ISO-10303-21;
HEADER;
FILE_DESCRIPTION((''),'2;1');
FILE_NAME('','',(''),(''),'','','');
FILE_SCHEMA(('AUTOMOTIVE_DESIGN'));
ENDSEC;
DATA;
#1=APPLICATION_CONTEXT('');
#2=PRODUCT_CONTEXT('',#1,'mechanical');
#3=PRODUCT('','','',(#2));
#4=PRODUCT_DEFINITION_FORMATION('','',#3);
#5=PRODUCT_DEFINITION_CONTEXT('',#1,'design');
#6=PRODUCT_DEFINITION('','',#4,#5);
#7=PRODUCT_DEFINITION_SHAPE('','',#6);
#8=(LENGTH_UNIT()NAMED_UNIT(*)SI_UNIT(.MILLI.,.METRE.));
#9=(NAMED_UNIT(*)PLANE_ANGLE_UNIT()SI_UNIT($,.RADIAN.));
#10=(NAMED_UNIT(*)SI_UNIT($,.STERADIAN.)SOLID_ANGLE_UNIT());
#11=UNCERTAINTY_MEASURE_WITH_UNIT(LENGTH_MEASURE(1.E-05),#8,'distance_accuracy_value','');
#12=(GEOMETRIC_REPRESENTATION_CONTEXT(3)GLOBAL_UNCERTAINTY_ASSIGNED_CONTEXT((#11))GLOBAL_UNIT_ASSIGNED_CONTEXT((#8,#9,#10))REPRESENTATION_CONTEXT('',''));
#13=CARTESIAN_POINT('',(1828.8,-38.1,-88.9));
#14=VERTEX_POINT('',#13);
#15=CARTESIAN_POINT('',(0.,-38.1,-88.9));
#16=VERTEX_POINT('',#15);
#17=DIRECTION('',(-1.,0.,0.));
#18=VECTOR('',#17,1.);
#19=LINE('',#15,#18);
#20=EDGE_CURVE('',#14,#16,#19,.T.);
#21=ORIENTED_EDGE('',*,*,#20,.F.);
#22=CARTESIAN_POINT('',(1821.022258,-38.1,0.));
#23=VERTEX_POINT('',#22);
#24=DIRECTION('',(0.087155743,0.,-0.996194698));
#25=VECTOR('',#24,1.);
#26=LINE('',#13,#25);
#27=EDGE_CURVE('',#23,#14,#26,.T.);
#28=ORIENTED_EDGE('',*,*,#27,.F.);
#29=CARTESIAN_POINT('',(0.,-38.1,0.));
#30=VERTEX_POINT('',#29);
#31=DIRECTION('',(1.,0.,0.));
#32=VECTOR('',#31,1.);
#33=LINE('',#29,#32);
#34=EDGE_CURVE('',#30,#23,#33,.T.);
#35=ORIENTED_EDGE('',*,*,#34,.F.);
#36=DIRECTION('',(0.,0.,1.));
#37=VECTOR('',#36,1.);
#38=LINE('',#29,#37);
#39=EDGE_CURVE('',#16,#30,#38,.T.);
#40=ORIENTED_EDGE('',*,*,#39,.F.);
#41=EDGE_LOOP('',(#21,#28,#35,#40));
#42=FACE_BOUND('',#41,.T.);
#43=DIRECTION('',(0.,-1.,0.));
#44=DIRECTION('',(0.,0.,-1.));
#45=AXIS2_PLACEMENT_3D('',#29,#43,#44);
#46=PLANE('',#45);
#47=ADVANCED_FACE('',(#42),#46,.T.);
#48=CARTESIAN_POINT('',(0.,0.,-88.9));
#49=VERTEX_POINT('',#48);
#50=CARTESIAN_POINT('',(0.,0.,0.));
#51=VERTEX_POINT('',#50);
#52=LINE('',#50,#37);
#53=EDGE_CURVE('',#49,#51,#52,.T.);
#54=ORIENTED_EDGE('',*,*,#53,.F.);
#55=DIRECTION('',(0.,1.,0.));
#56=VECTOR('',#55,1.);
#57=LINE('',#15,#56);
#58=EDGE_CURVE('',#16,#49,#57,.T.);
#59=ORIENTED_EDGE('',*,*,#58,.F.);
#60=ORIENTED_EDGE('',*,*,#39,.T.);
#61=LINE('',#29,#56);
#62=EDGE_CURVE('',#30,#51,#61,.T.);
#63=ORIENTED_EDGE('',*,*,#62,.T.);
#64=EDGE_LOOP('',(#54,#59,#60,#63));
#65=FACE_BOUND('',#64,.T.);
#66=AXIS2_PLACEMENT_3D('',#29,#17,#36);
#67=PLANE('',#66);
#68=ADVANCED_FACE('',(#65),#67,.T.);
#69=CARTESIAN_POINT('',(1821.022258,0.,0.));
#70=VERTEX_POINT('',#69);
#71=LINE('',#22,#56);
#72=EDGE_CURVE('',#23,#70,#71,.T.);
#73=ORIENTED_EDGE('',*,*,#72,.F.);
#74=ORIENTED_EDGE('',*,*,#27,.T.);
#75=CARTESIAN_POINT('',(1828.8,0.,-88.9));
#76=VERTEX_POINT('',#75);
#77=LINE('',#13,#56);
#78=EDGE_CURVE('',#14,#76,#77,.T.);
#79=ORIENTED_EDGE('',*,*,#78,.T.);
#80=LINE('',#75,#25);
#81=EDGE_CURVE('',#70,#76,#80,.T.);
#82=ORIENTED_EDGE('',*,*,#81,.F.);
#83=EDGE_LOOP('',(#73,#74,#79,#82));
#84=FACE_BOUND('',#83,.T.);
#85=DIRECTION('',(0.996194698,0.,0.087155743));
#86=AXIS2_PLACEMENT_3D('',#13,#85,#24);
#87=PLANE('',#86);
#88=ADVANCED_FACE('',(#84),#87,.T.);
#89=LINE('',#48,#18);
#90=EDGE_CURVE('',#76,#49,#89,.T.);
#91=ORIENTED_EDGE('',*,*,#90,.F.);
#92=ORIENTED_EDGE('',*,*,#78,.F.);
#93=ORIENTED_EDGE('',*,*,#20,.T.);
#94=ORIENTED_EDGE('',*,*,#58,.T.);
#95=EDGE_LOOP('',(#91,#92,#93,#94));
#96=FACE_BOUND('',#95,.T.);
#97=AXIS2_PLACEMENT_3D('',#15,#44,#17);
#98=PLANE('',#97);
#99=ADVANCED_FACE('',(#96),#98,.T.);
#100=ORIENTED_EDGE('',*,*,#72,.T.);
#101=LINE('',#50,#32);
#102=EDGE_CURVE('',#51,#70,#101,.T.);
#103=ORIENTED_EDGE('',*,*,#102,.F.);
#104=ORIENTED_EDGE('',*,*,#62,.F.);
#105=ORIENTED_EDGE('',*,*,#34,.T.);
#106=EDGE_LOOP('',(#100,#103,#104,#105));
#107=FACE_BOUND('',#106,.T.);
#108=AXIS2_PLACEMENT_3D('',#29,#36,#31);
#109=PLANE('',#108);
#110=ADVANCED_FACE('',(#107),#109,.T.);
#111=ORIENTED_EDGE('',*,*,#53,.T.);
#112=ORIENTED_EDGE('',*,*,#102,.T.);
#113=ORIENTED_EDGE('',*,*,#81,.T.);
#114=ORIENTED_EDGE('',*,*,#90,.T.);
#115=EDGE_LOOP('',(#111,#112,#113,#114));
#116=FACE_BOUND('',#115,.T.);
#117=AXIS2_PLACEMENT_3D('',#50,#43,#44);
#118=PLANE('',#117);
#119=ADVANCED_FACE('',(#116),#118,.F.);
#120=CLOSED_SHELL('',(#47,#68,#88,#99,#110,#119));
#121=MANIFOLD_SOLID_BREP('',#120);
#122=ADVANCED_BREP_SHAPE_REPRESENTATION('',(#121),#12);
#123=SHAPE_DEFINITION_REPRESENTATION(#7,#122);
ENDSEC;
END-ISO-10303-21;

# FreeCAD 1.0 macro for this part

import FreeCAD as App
import Part
import Sketcher
Q = App.Units.Quantity

doc = App.newDocument("Part")
body = doc.addObject("PartDesign::Body", "Body")

sketch1 = doc.addObject("Sketcher::SketchObject", "Sketch")
body.addObject(sketch1)
sketch1.AttachmentSupport = (doc.XZ_Plane, [""])
sketch1.MapMode = "FlatFace"
sketch1.addGeometry(Part.LineSegment(App.Vector(1821.022258, 0, 0), App.Vector(1828.8, -88.9, 0)), False)
sketch1.addGeometry(Part.LineSegment(App.Vector(1828.8, -88.9, 0), App.Vector(0, -88.9, 0)), False)
sketch1.addGeometry(Part.LineSegment(App.Vector(0, -88.9, 0), App.Vector(0, 0, 0)), False)
sketch1.addGeometry(Part.LineSegment(App.Vector(0, 0, 0), App.Vector(1821.022258, 0, 0)), False)
sketch1.addConstraint(Sketcher.Constraint("Coincident", 0, 2, 1, 1))
sketch1.addConstraint(Sketcher.Constraint("Coincident", 1, 2, 2, 1))
sketch1.addConstraint(Sketcher.Constraint("Coincident", 2, 2, 3, 1))
sketch1.addConstraint(Sketcher.Constraint("Coincident", 3, 2, 0, 1))
sketch1.addConstraint(Sketcher.Constraint("Horizontal", 1))
sketch1.addConstraint(Sketcher.Constraint("Vertical", 2))
sketch1.addConstraint(Sketcher.Constraint("Horizontal", 3))
sketch1.addConstraint(Sketcher.Constraint("Coincident", 2, 2, -1, 1))
sketch1.addConstraint(Sketcher.Constraint("DistanceX", 1, 2, 1, 1, Q("72 in")))
sketch1.addConstraint(Sketcher.Constraint("DistanceY", 2, 1, 2, 2, Q("3.5 in")))
sketch1.addConstraint(Sketcher.Constraint("Angle", 0, Q("-85 deg")))
pad1 = doc.addObject("PartDesign::Pad", "Pad")
body.addObject(pad1)
pad1.Profile = sketch1
pad1.Length = Q("1.5 in")

doc.recompute()
